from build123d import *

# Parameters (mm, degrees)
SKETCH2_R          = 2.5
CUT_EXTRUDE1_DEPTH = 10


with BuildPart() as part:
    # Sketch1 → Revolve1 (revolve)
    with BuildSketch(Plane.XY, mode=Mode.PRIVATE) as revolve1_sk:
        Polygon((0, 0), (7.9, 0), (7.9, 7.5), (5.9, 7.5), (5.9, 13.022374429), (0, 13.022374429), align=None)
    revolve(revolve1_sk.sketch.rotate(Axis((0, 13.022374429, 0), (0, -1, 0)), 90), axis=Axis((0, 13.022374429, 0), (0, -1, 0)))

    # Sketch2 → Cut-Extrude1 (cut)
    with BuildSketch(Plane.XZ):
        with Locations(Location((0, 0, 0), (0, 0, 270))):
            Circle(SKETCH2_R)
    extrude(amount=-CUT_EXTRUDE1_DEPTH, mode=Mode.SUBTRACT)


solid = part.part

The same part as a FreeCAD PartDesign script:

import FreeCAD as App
import Part
import Sketcher
from FreeCAD import Vector

doc = App.newDocument("Part")
params = doc.addObject("Spreadsheet::Sheet", "Params")
for row, (alias, value) in enumerate([
    ("sketch1_width", "2 mm"),
    ("sketch1_width2", "7.9 mm"),
    ("sketch1_height", "7.5 mm"),
    ("revolution_angle", "360 deg"),
    ("sketch2_diameter", "5 mm"),
    ("pocket1_length", "10 mm"),
], start=1):
    params.set(f"A{row}", alias)
    params.set(f"B{row}", "=" + value)
    params.setAlias(f"B{row}", alias)

body = doc.addObject("PartDesign::Body", "Body")

sketch1 = body.newObject("Sketcher::SketchObject", "Sketch")
sketch1.AttachmentSupport = (doc.getObject("XY_Plane"), [""])
sketch1.MapMode = "FlatFace"
sketch1.addGeometry([
    Part.LineSegment(Vector(0, 0, 0), Vector(7.9, 0, 0)),
    Part.LineSegment(Vector(7.9, 0, 0), Vector(7.9, 7.5, 0)),
    Part.LineSegment(Vector(7.9, 7.5, 0), Vector(5.9, 7.5, 0)),
    Part.LineSegment(Vector(5.9, 7.5, 0), Vector(5.9, 13, 0)),
    Part.LineSegment(Vector(5.9, 13, 0), Vector(0, 13, 0)),
    Part.LineSegment(Vector(0, 13, 0), Vector(0, 0, 0)),
], False)
sketch1.addConstraint([
    Sketcher.Constraint("Coincident", 0, 2, 1, 1),
    Sketcher.Constraint("Coincident", 1, 2, 2, 1),
    Sketcher.Constraint("Coincident", 2, 2, 3, 1),
    Sketcher.Constraint("Coincident", 3, 2, 4, 1),
    Sketcher.Constraint("Coincident", 4, 2, 5, 1),
    Sketcher.Constraint("Coincident", 5, 2, 0, 1),
    Sketcher.Constraint("Horizontal", 0),
    Sketcher.Constraint("Vertical", 1),
    Sketcher.Constraint("Horizontal", 2),
    Sketcher.Constraint("Vertical", 3),
    Sketcher.Constraint("Horizontal", 4),
    Sketcher.Constraint("Vertical", 5),
    Sketcher.Constraint("Coincident", 5, 2, -1, 1),
    Sketcher.Constraint("DistanceX", 2, 2, 2, 1, 2.0),
    Sketcher.Constraint("DistanceX", 0, 1, 0, 2, 7.9),
    Sketcher.Constraint("DistanceY", 1, 1, 1, 2, 7.5),
    Sketcher.Constraint("DistanceY", 3, 1, 3, 2, 5.522374),
])
sketch1.setExpression("Constraints[13]", "Params.sketch1_width")
sketch1.setExpression("Constraints[14]", "Params.sketch1_width2")
sketch1.setExpression("Constraints[15]", "Params.sketch1_height")
revolution = body.newObject("PartDesign::Revolution", "Revolution")
revolution.Profile = sketch1
revolution.ReferenceAxis = (sketch1, ["V_Axis"])
revolution.setExpression("Angle", "Params.revolution_angle")

sketch2 = body.newObject("Sketcher::SketchObject", "Sketch001")
sketch2.AttachmentSupport = (doc.getObject("XZ_Plane"), [""])
sketch2.MapMode = "FlatFace"
sketch2.addGeometry(Part.Circle(Vector(0, 0, 0), Vector(0, 0, 1), 2.5), False)
sketch2.addConstraint([
    Sketcher.Constraint("Coincident", 0, 3, -1, 1),
    Sketcher.Constraint("Diameter", 0, 5.0),
])
sketch2.setExpression("Constraints[1]", "Params.sketch2_diameter")
pocket1 = body.newObject("PartDesign::Pocket", "Pocket")
pocket1.Profile = sketch2
pocket1.setExpression("Length", "Params.pocket1_length")

doc.recompute()
